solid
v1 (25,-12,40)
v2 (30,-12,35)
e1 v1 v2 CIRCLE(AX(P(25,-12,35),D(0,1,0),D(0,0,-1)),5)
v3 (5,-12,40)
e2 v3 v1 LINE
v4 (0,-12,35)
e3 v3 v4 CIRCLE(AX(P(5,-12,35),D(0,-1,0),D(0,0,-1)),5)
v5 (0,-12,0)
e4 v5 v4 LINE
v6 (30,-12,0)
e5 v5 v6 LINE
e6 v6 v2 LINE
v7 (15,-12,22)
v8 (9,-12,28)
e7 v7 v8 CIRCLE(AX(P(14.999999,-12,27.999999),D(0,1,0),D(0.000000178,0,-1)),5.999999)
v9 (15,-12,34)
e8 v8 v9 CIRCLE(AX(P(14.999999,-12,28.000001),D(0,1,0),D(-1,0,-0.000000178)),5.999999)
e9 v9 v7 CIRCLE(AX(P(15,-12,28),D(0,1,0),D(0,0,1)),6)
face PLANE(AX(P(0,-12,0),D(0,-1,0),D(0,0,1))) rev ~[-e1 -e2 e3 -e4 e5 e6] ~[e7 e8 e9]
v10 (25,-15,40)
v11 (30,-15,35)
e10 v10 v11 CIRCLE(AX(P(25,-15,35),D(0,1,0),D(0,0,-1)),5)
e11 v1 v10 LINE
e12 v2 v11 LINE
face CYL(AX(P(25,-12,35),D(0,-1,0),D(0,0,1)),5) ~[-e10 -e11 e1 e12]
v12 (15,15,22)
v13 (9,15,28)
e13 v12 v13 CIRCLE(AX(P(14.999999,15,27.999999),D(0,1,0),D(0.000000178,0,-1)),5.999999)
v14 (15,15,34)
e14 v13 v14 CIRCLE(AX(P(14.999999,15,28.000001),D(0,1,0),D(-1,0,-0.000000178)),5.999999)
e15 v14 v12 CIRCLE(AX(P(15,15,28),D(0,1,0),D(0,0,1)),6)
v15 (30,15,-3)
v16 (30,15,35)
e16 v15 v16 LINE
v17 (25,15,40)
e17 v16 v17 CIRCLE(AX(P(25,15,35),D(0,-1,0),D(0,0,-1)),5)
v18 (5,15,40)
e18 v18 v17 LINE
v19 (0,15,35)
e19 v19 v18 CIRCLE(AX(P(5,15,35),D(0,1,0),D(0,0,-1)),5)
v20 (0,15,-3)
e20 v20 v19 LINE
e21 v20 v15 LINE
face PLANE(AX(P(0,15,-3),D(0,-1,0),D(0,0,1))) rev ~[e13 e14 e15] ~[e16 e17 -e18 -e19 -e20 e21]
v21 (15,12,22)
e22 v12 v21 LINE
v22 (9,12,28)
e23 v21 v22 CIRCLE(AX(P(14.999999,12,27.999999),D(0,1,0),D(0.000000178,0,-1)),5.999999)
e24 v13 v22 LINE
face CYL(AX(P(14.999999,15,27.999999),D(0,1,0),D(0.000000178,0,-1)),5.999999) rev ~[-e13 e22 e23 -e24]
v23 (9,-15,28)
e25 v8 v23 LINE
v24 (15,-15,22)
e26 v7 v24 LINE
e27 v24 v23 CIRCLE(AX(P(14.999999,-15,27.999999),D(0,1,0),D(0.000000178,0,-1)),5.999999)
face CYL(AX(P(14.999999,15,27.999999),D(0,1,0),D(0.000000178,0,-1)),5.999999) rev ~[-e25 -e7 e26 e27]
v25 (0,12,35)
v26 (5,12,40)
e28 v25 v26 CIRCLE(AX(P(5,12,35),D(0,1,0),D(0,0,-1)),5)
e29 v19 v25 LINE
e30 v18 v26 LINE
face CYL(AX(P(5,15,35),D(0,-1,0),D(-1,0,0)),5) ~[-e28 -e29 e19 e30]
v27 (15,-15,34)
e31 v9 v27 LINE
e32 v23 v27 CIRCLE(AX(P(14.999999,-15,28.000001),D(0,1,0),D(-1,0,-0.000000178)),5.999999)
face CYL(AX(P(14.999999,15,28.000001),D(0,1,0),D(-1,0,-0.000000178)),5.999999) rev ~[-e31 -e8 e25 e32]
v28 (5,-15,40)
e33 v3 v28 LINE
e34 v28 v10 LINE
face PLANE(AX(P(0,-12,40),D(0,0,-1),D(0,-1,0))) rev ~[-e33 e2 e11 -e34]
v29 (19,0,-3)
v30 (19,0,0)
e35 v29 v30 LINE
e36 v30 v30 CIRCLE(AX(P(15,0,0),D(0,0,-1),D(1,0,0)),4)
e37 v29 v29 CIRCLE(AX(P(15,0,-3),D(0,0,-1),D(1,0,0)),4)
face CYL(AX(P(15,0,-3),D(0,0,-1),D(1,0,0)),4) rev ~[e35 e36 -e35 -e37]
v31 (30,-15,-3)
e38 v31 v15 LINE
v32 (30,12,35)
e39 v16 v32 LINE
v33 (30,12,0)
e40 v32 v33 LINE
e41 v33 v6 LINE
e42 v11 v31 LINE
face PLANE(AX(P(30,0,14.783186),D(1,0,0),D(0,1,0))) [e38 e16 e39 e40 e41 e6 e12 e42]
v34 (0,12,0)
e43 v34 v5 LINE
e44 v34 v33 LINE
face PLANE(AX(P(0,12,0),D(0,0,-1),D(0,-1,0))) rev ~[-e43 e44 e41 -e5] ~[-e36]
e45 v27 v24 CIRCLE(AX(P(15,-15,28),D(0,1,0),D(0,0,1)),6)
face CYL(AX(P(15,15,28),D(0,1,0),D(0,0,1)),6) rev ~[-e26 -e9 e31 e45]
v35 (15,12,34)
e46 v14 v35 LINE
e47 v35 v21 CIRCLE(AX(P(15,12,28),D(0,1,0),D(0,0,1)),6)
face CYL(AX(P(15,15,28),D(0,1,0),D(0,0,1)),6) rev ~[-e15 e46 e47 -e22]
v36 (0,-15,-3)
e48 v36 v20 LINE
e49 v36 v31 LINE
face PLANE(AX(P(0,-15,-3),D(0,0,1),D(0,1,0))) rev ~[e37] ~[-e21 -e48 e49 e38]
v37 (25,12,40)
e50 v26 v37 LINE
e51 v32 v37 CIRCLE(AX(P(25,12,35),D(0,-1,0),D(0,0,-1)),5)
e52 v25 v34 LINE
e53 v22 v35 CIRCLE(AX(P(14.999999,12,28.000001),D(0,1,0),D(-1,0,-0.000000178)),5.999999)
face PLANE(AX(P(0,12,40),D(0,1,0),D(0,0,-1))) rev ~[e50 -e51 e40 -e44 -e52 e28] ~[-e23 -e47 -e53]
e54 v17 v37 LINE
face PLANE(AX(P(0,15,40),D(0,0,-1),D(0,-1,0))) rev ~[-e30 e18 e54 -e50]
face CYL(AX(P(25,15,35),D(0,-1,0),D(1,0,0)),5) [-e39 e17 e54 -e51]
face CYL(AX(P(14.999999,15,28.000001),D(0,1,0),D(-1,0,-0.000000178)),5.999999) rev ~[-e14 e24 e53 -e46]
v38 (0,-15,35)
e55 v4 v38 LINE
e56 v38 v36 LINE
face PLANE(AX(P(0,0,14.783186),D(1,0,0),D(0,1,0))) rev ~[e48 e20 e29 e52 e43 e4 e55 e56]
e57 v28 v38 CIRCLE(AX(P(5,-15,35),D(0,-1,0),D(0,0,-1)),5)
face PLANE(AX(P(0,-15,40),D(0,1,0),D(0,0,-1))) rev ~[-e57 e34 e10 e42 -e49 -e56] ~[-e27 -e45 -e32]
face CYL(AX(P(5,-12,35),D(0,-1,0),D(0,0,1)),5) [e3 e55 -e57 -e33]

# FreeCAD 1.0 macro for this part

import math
import FreeCAD as App
import Part
import Sketcher
from FreeCAD import Vector
Q = App.Units.Quantity


def edges_at(feature, points):
    """Names of the edges that pass closest to the given points."""
    edges = feature.Shape.Edges
    near = lambda p: min(range(len(edges)), key=lambda i: edges[i].distToShape(Part.Vertex(*p))[0])
    return sorted({f"Edge{near(p) + 1}" for p in points})


def add_polygon(sketch, points):
    """Adds a closed chain of lines whose ends are joined by coincident constraints."""
    first, n = sketch.GeometryCount, len(points)
    for a, b in zip(points, points[1:] + points[:1]):
        sketch.addGeometry(Part.LineSegment(App.Vector(*a, 0), App.Vector(*b, 0)), False)
    for i in range(n):
        sketch.addConstraint(Sketcher.Constraint("Coincident", first + i, 2, first + (i + 1) % n, 1))

doc = App.newDocument("Part")
body = doc.addObject("PartDesign::Body", "Body")

sketch1 = doc.addObject("Sketcher::SketchObject", "Sketch")
body.addObject(sketch1)
sketch1.AttachmentSupport = (doc.YZ_Plane, [""])
sketch1.MapMode = "FlatFace"
add_polygon(sketch1, [(-12, 40), (-15, 40), (-15, -3), (15, -3), (15, 40), (12, 40), (12, 0), (-12, 0)])
sketch1.addConstraint(Sketcher.Constraint("Horizontal", 0))
sketch1.addConstraint(Sketcher.Constraint("Vertical", 1))
sketch1.addConstraint(Sketcher.Constraint("Horizontal", 2))
sketch1.addConstraint(Sketcher.Constraint("Vertical", 3))
sketch1.addConstraint(Sketcher.Constraint("Horizontal", 4))
sketch1.addConstraint(Sketcher.Constraint("Vertical", 5))
sketch1.addConstraint(Sketcher.Constraint("Horizontal", 6))
sketch1.addConstraint(Sketcher.Constraint("Vertical", 7))
sketch1.addConstraint(Sketcher.Constraint("Symmetric", 5, 2, 6, 2, -1, 1))
sketch1.addConstraint(Sketcher.Constraint("Symmetric", 0, 2, 3, 2, -2))
sketch1.addConstraint(Sketcher.Constraint("DistanceX", 0, 2, 0, 1, Q("3 mm")))
sketch1.addConstraint(Sketcher.Constraint("DistanceX", 2, 1, 2, 2, Q("30 mm")))
sketch1.addConstraint(Sketcher.Constraint("DistanceY", 1, 2, 1, 1, Q("43 mm")))
sketch1.addConstraint(Sketcher.Constraint("DistanceY", 5, 2, 5, 1, Q("40 mm")))
pad1 = doc.addObject("PartDesign::Pad", "Pad")
body.addObject(pad1)
pad1.Profile = sketch1
pad1.Length = 30

sketch2 = doc.addObject("Sketcher::SketchObject", "Sketch001")
body.addObject(sketch2)
sketch2.AttachmentSupport = (doc.XZ_Plane, [""])
sketch2.MapMode = "FlatFace"
sketch2.AttachmentOffset = App.Placement(Vector(0, 0, -15), App.Rotation())
sketch2.addGeometry(Part.ArcOfCircle(Part.Circle(Vector(14.999999, 27.999999, 0), Vector(0, 0, 1), 5.999999), math.radians(179.99999), math.radians(270.00001)), False)
sketch2.addGeometry(Part.ArcOfCircle(Part.Circle(Vector(14.999999, 28.000001, 0), Vector(0, 0, 1), 5.999999), math.radians(89.99999), math.radians(180.00001)), False)
sketch2.addGeometry(Part.ArcOfCircle(Part.Circle(Vector(15, 28, 0), Vector(0, 0, 1), 6), math.radians(-90), math.radians(90)), False)
sketch2.addConstraint(Sketcher.Constraint("Tangent", 0, 1, 1, 2))
sketch2.addConstraint(Sketcher.Constraint("Tangent", 1, 1, 2, 2))
sketch2.addConstraint(Sketcher.Constraint("Tangent", 2, 1, 0, 2))
sketch2.addConstraint(Sketcher.Constraint("Horizontal", 2, 3, 0, 1))
sketch2.addConstraint(Sketcher.Constraint("Vertical", 2, 3, 1, 1))
sketch2.addConstraint(Sketcher.Constraint("Vertical", 1, 1, 2, 1))
sketch2.addConstraint(Sketcher.Constraint("Radius", 0, Q("5.999999 mm")))
sketch2.addConstraint(Sketcher.Constraint("DistanceX", -1, 1, 0, 3, Q("14.999999 mm")))
sketch2.addConstraint(Sketcher.Constraint("DistanceY", -1, 1, 0, 3, Q("27.999999 mm")))
pocket1 = doc.addObject("PartDesign::Pocket", "Pocket")
body.addObject(pocket1)
pocket1.Profile = sketch2
pocket1.Type = "ThroughAll"
pocket1.Reversed = True
doc.recompute()

fillet = doc.addObject("PartDesign::Fillet", "Fillet")
body.addObject(fillet)
fillet.Base = (pocket1, edges_at(pocket1, [
    (0, 13.5, 40),
    (0, -13.5, 40),
    (30, 13.5, 40),
    (30, -13.5, 40),
]))
fillet.Radius = 5

sketch3 = doc.addObject("Sketcher::SketchObject", "Sketch002")
body.addObject(sketch3)
sketch3.AttachmentSupport = (doc.XY_Plane, [""])
sketch3.MapMode = "FlatFace"
sketch3.AttachmentOffset = App.Placement(Vector(0, 0, -3), App.Rotation())
sketch3.addGeometry(Part.Circle(Vector(15, 0, 0), Vector(0, 0, 1), 4), False)
sketch3.addConstraint(Sketcher.Constraint("PointOnObject", 0, 3, -1))
sketch3.addConstraint(Sketcher.Constraint("Diameter", 0, Q("8 mm")))
sketch3.addConstraint(Sketcher.Constraint("DistanceX", -1, 1, 0, 3, Q("15 mm")))
pocket2 = doc.addObject("PartDesign::Pocket", "Pocket001")
body.addObject(pocket2)
pocket2.Profile = sketch3
pocket2.Type = "ThroughAll"
pocket2.Reversed = True

doc.recompute()
